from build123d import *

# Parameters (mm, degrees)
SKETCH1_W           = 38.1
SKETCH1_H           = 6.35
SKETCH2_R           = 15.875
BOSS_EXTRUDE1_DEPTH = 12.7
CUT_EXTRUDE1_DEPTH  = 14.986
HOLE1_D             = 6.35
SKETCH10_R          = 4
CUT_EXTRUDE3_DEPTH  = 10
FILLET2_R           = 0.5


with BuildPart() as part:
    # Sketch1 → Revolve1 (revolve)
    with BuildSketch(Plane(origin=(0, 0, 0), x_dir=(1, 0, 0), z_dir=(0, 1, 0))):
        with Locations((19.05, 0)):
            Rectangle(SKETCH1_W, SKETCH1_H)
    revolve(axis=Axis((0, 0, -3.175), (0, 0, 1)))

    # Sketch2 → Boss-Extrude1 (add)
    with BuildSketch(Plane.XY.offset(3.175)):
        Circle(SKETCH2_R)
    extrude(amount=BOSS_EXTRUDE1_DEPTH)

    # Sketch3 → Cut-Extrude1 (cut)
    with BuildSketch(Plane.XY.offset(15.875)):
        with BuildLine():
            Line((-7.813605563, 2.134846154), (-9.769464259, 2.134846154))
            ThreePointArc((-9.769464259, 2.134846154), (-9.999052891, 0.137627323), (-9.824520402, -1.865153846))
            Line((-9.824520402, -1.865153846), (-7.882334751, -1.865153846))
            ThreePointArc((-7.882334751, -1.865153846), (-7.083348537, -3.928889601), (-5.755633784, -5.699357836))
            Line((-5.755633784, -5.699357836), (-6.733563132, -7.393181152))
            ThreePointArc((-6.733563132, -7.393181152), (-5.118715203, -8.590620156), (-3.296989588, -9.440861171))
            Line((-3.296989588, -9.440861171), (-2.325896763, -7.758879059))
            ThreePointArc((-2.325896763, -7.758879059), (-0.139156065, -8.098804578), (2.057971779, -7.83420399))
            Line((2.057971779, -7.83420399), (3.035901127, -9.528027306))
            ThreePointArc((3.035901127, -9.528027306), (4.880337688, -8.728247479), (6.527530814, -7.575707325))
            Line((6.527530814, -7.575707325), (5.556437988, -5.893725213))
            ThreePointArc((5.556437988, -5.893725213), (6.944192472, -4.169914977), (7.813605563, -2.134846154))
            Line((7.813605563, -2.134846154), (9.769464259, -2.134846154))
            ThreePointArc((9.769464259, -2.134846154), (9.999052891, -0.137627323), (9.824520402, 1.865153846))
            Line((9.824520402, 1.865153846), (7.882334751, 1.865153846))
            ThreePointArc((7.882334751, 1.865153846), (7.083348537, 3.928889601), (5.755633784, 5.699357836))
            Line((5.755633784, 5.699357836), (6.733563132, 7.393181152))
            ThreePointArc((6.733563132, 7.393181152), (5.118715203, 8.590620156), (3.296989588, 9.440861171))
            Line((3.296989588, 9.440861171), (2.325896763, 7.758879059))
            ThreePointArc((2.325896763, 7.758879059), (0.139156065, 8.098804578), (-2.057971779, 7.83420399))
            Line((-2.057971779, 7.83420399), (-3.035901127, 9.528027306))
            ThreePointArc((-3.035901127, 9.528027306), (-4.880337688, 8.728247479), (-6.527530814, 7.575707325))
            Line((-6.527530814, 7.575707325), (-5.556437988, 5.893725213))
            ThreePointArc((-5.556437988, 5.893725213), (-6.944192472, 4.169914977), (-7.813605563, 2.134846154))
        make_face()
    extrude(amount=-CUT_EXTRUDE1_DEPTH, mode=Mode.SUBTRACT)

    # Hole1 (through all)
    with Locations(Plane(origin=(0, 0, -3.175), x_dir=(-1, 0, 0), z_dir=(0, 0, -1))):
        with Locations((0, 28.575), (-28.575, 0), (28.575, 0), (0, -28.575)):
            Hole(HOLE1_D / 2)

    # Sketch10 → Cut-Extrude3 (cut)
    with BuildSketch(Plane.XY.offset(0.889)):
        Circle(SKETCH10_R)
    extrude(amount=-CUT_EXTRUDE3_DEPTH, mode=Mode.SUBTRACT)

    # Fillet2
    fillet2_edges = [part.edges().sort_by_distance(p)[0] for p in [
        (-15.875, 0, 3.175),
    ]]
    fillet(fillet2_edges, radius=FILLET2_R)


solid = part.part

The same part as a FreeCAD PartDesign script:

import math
import FreeCAD as App
import Part
import Sketcher

V = App.Vector
Q = App.Units.Quantity


def edges_at(feature, points):
    """Names of the edges that pass closest to the given points."""
    edges = feature.Shape.Edges
    near = lambda p: min(range(len(edges)), key=lambda i: edges[i].distToShape(Part.Vertex(*p))[0])
    return sorted({f"Edge{near(p) + 1}" for p in points})


def add_polygon(sketch, points):
    """Adds a closed chain of lines whose ends are joined by coincident constraints."""
    first, n = sketch.GeometryCount, len(points)
    for a, b in zip(points, points[1:] + points[:1]):
        sketch.addGeometry(Part.LineSegment(App.Vector(*a, 0), App.Vector(*b, 0)), False)
    for i in range(n):
        sketch.addConstraint(Sketcher.Constraint("Coincident", first + i, 2, first + (i + 1) % n, 1))

doc = App.newDocument("Part")
params = doc.addObject("Spreadsheet::Sheet", "Params")
for row, (alias, value) in enumerate([
    ("sketch1_width", "38.1 mm"),
    ("sketch1_height", "6.35 mm"),
    ("revolution_angle", "360 deg"),
    ("sketch2_diameter", "31.75 mm"),
    ("pad1_length", "12.7 mm"),
    ("sketch3_radius", "10 mm"),
    ("sketch3_radius2", "8.1 mm"),
    ("pocket1_length", "14.986 mm"),
    ("sketch4_diameter", "6.35 mm"),
    ("hole_diameter", "6.35 mm"),
    ("sketch5_diameter", "8 mm"),
    ("pocket2_length", "10 mm"),
    ("fillet_radius", "0.5 mm"),
], start=1):
    params.set(f"A{row}", alias)
    params.set(f"B{row}", "=" + value)
    params.setAlias(f"B{row}", alias)

body = doc.addObject("PartDesign::Body", "Body")

# Sketch on XZ plane
sketch1 = body.newObject("Sketcher::SketchObject", "Sketch")
sketch1.AttachmentSupport = (doc.getObject("XZ_Plane"), [""])
sketch1.MapMode = "FlatFace"
add_polygon(sketch1, [(0, -3.175), (0, 3.175), (38.1, 3.175), (38.1, -3.175)])  # lines 0-3
sketch1.addConstraint([
    Sketcher.Constraint("Vertical", 0),
    Sketcher.Constraint("Horizontal", 1),
    Sketcher.Constraint("Vertical", 2),
    Sketcher.Constraint("Horizontal", 3),
    Sketcher.Constraint("Symmetric", 0, 2, 3, 2, -1, 1),
    Sketcher.Constraint("DistanceX", 1, 1, 1, 2, Q("38.1 mm")),
    Sketcher.Constraint("DistanceY", 0, 1, 0, 2, Q("6.35 mm")),
])
sketch1.setExpression("Constraints[9]", "Params.sketch1_width")
sketch1.setExpression("Constraints[10]", "Params.sketch1_height")
revolution = body.newObject("PartDesign::Revolution", "Revolution")
revolution.Profile = sketch1
revolution.ReferenceAxis = (sketch1, ["V_Axis"])
revolution.setExpression("Angle", "Params.revolution_angle")

# Sketch on XY plane
sketch2 = body.newObject("Sketcher::SketchObject", "Sketch001")
sketch2.AttachmentSupport = (doc.getObject("XY_Plane"), [""])
sketch2.MapMode = "FlatFace"
sketch2.AttachmentOffset = App.Placement(V(0, 0, 3.175), App.Rotation())
sketch2.addGeometry(Part.Circle(V(0, 0, 0), V(0, 0, 1), 15.875), False)
sketch2.addConstraint([
    Sketcher.Constraint("Coincident", 0, 3, -1, 1),
    Sketcher.Constraint("Diameter", 0, Q("31.75 mm")),
])
sketch2.setExpression("Constraints[1]", "Params.sketch2_diameter")
pad1 = body.newObject("PartDesign::Pad", "Pad")
pad1.Profile = sketch2
pad1.setExpression("Length", "Params.pad1_length")

# Sketch on XY plane
sketch3 = body.newObject("Sketcher::SketchObject", "Sketch002")
sketch3.AttachmentSupport = (doc.getObject("XY_Plane"), [""])
sketch3.MapMode = "FlatFace"
sketch3.AttachmentOffset = App.Placement(V(0, 0, 15.875), App.Rotation())
sketch3.addGeometry([
    Part.LineSegment(V(-7.813606, 2.134846, 0), V(-9.769464, 2.134846, 0)),  # 0
    Part.ArcOfCircle(Part.Circle(V(0, 0, 0), V(0, 0, 1), 10), math.radians(167.673362), math.radians(190.749495)),  # 1
    Part.LineSegment(V(-9.82452, -1.865154, 0), V(-7.882335, -1.865154, 0)),  # 2
    Part.ArcOfCircle(Part.Circle(V(0, 0, 0), V(0, 0, 1), 8.1), math.radians(-166.687273), math.radians(-135.28148)),  # 3
    Part.LineSegment(V(-5.755634, -5.699358, 0), V(-6.733563, -7.393181, 0)),  # 4
    Part.ArcOfCircle(Part.Circle(V(0, 0, 0), V(0, 0, 1), 10), math.radians(-132.326638), math.radians(-109.250505)),  # 5
    Part.LineSegment(V(-3.29699, -9.440861, 0), V(-2.325897, -7.758879, 0)),  # 6
    Part.ArcOfCircle(Part.Circle(V(0, 0, 0), V(0, 0, 1), 8.1), math.radians(-106.687273), math.radians(-75.28148)),  # 7
    Part.LineSegment(V(2.057972, -7.834204, 0), V(3.035901, -9.528027, 0)),  # 8
    Part.ArcOfCircle(Part.Circle(V(0, 0, 0), V(0, 0, 1), 10), math.radians(-72.326638), math.radians(-49.250505)),  # 9
    Part.LineSegment(V(6.527531, -7.575707, 0), V(5.556438, -5.893725, 0)),  # 10
    Part.ArcOfCircle(Part.Circle(V(0, 0, 0), V(0, 0, 1), 8.1), math.radians(-46.687273), math.radians(-15.28148)),  # 11
    Part.LineSegment(V(7.813606, -2.134846, 0), V(9.769464, -2.134846, 0)),  # 12
    Part.ArcOfCircle(Part.Circle(V(0, 0, 0), V(0, 0, 1), 10), math.radians(-12.326638), math.radians(10.749495)),  # 13
    Part.LineSegment(V(9.82452, 1.865154, 0), V(7.882335, 1.865154, 0)),  # 14
    Part.ArcOfCircle(Part.Circle(V(0, 0, 0), V(0, 0, 1), 8.1), math.radians(13.312727), math.radians(44.71852)),  # 15
    Part.LineSegment(V(5.755634, 5.699358, 0), V(6.733563, 7.393181, 0)),  # 16
    Part.ArcOfCircle(Part.Circle(V(0, 0, 0), V(0, 0, 1), 10), math.radians(47.673362), math.radians(70.749495)),  # 17
    Part.LineSegment(V(3.29699, 9.440861, 0), V(2.325897, 7.758879, 0)),  # 18
    Part.ArcOfCircle(Part.Circle(V(0, 0, 0), V(0, 0, 1), 8.1), math.radians(73.312727), math.radians(104.71852)),  # 19
    Part.LineSegment(V(-2.057972, 7.834204, 0), V(-3.035901, 9.528027, 0)),  # 20
    Part.ArcOfCircle(Part.Circle(V(0, 0, 0), V(0, 0, 1), 10), math.radians(107.673362), math.radians(130.749495)),  # 21
    Part.LineSegment(V(-6.527531, 7.575707, 0), V(-5.556438, 5.893725, 0)),  # 22
    Part.ArcOfCircle(Part.Circle(V(0, 0, 0), V(0, 0, 1), 8.1), math.radians(133.312727), math.radians(164.71852)),  # 23
], False)
sketch3.addConstraint([
    Sketcher.Constraint("Coincident", 0, 2, 1, 1),
    Sketcher.Constraint("Coincident", 1, 2, 2, 1),
    Sketcher.Constraint("Coincident", 2, 2, 3, 1),
    Sketcher.Constraint("Coincident", 3, 2, 4, 1),
    Sketcher.Constraint("Coincident", 4, 2, 5, 1),
    Sketcher.Constraint("Coincident", 5, 2, 6, 1),
    Sketcher.Constraint("Coincident", 6, 2, 7, 1),
    Sketcher.Constraint("Coincident", 7, 2, 8, 1),
    Sketcher.Constraint("Coincident", 8, 2, 9, 1),
    Sketcher.Constraint("Coincident", 9, 2, 10, 1),
    Sketcher.Constraint("Coincident", 10, 2, 11, 1),
    Sketcher.Constraint("Coincident", 11, 2, 12, 1),
    Sketcher.Constraint("Coincident", 12, 2, 13, 1),
    Sketcher.Constraint("Coincident", 13, 2, 14, 1),
    Sketcher.Constraint("Coincident", 14, 2, 15, 1),
    Sketcher.Constraint("Coincident", 15, 2, 16, 1),
    Sketcher.Constraint("Coincident", 16, 2, 17, 1),
    Sketcher.Constraint("Coincident", 17, 2, 18, 1),
    Sketcher.Constraint("Coincident", 18, 2, 19, 1),
    Sketcher.Constraint("Coincident", 19, 2, 20, 1),
    Sketcher.Constraint("Coincident", 20, 2, 21, 1),
    Sketcher.Constraint("Coincident", 21, 2, 22, 1),
    Sketcher.Constraint("Coincident", 22, 2, 23, 1),
    Sketcher.Constraint("Coincident", 23, 2, 0, 1),
    Sketcher.Constraint("Horizontal", 0),
    Sketcher.Constraint("Horizontal", 2),
    Sketcher.Constraint("Horizontal", 12),
    Sketcher.Constraint("Horizontal", 14),
    Sketcher.Constraint("Coincident", 1, 3, -1, 1),
    Sketcher.Constraint("Coincident", 3, 3, -1, 1),
    Sketcher.Constraint("Coincident", 5, 3, -1, 1),
    Sketcher.Constraint("Coincident", 7, 3, -1, 1),
    Sketcher.Constraint("Coincident", 9, 3, -1, 1),
    Sketcher.Constraint("Coincident", 11, 3, -1, 1),
    Sketcher.Constraint("Coincident", 13, 3, -1, 1),
    Sketcher.Constraint("Coincident", 15, 3, -1, 1),
    Sketcher.Constraint("Coincident", 17, 3, -1, 1),
    Sketcher.Constraint("Coincident", 19, 3, -1, 1),
    Sketcher.Constraint("Coincident", 21, 3, -1, 1),
    Sketcher.Constraint("Coincident", 23, 3, -1, 1),
    Sketcher.Constraint("Equal", 1, 5),
    Sketcher.Constraint("Equal", 3, 7),
    Sketcher.Constraint("Equal", 5, 9),
    Sketcher.Constraint("Equal", 7, 11),
    Sketcher.Constraint("Equal", 9, 13),
    Sketcher.Constraint("Equal", 11, 15),
    Sketcher.Constraint("Equal", 13, 17),
    Sketcher.Constraint("Equal", 15, 19),
    Sketcher.Constraint("Equal", 17, 21),
    Sketcher.Constraint("Equal", 19, 23),
    Sketcher.Constraint("Parallel", 4, 6),
    Sketcher.Constraint("Parallel", 8, 10),
    Sketcher.Constraint("Parallel", 6, 16),
    Sketcher.Constraint("Parallel", 16, 18),
    Sketcher.Constraint("Parallel", 10, 20),
    Sketcher.Constraint("Parallel", 20, 22),
    Sketcher.Constraint("Equal", 0, 12),
    Sketcher.Constraint("Equal", 2, 14),
    Sketcher.Constraint("Equal", 4, 8),
    Sketcher.Constraint("Equal", 6, 10),
    Sketcher.Constraint("Equal", 8, 16),
    Sketcher.Constraint("Equal", 10, 18),
    Sketcher.Constraint("Equal", 16, 20),
    Sketcher.Constraint("Equal", 18, 22),
    Sketcher.Constraint("Radius", 1, Q("10 mm")),
    Sketcher.Constraint("Radius", 3, Q("8.1 mm")),
    Sketcher.Constraint("Angle", 4, Q("-120 deg")),
    Sketcher.Constraint("Angle", 8, Q("-60 deg")),
    Sketcher.Constraint("DistanceY", 1, 2, 0, 2, Q("4 mm")),
    Sketcher.Constraint("DistanceX", 0, 2, 0, 1, Q("1.955859 mm")),
    Sketcher.Constraint("DistanceX", -1, 1, 8, 2, Q("3.035901 mm")),
    Sketcher.Constraint("DistanceX", 5, 2, -1, 1, Q("3.29699 mm")),
])
sketch3.setExpression("Constraints[64]", "Params.sketch3_radius")
sketch3.setExpression("Constraints[65]", "Params.sketch3_radius2")
pocket1 = body.newObject("PartDesign::Pocket", "Pocket")
pocket1.Profile = sketch3
pocket1.setExpression("Length", "Params.pocket1_length")

# Sketch on XY plane
sketch4 = body.newObject("Sketcher::SketchObject", "Sketch003")
sketch4.AttachmentSupport = (doc.getObject("XY_Plane"), [""])
sketch4.MapMode = "FlatFace"
sketch4.AttachmentOffset = App.Placement(V(0, 0, -3.175), App.Rotation())
sketch4.addGeometry([
    Part.Circle(V(0, 28.575, 0), V(0, 0, 1), 3.175),
    Part.Circle(V(28.575, 0, 0), V(0, 0, 1), 3.175),
    Part.Circle(V(-28.575, 0, 0), V(0, 0, 1), 3.175),
    Part.Circle(V(0, -28.575, 0), V(0, 0, 1), 3.175),
], False)
sketch4.addConstraint([
    Sketcher.Constraint("Equal", 0, 1),
    Sketcher.Constraint("Equal", 1, 2),
    Sketcher.Constraint("Equal", 2, 3),
    Sketcher.Constraint("Symmetric", 1, 3, 2, 3, -1, 1),
    Sketcher.Constraint("Symmetric", 0, 3, 3, 3, -1, 1),
    Sketcher.Constraint("PointOnObject", 0, 3, -2),
    Sketcher.Constraint("PointOnObject", 1, 3, -1),
    Sketcher.Constraint("Diameter", 0, Q("6.35 mm")),
    Sketcher.Constraint("DistanceX", 2, 3, 1, 3, Q("57.15 mm")),
    Sketcher.Constraint("DistanceY", 3, 3, 0, 3, Q("57.15 mm")),
])
sketch4.setExpression("Constraints[7]", "Params.sketch4_diameter")
doc.recompute()
hole = body.newObject("PartDesign::Hole", "Hole")
hole.Profile = sketch4
hole.ThreadType = "None"
hole.setExpression("Diameter", "Params.hole_diameter")
hole.DepthType = "ThroughAll"
hole.Reversed = True

# Sketch on XY plane
sketch5 = body.newObject("Sketcher::SketchObject", "Sketch004")
sketch5.AttachmentSupport = (doc.getObject("XY_Plane"), [""])
sketch5.MapMode = "FlatFace"
sketch5.AttachmentOffset = App.Placement(V(0, 0, 0.889), App.Rotation())
sketch5.addGeometry(Part.Circle(V(0, 0, 0), V(0, 0, 1), 4), False)
sketch5.addConstraint([
    Sketcher.Constraint("Coincident", 0, 3, -1, 1),
    Sketcher.Constraint("Diameter", 0, Q("8 mm")),
])
sketch5.setExpression("Constraints[1]", "Params.sketch5_diameter")
pocket2 = body.newObject("PartDesign::Pocket", "Pocket001")
pocket2.Profile = sketch5
pocket2.setExpression("Length", "Params.pocket2_length")
doc.recompute()

fillet = body.newObject("PartDesign::Fillet", "Fillet")
fillet.Base = (pocket2, edges_at(pocket2, [(-15.875, 0, 3.175)]))
fillet.setExpression("Radius", "Params.fillet_radius")

doc.recompute()
